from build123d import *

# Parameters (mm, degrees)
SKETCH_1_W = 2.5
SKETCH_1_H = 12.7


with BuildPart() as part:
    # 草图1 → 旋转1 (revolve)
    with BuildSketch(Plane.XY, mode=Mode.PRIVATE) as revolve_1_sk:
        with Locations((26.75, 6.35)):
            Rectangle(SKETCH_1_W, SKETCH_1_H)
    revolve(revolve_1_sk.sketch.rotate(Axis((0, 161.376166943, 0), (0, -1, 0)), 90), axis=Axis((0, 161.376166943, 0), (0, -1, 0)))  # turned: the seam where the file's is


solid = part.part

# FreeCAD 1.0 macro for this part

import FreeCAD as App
import Part
import Sketcher
from FreeCAD import Vector
Q = App.Units.Quantity


def add_polygon(sketch, points):
    """Adds a closed chain of lines whose ends are joined by coincident constraints."""
    first, n = sketch.GeometryCount, len(points)
    for a, b in zip(points, points[1:] + points[:1]):
        sketch.addGeometry(Part.LineSegment(App.Vector(*a, 0), App.Vector(*b, 0)), False)
    for i in range(n):
        sketch.addConstraint(Sketcher.Constraint("Coincident", first + i, 2, first + (i + 1) % n, 1))

doc = App.newDocument("Part")
params = doc.addObject("Spreadsheet::Sheet", "Params")
for row, (alias, value) in enumerate([
    ("sketch1_width", "2.5 mm"),
    ("sketch1_height", "12.7 mm"),
    ("revolution_angle", "360 deg"),
], start=1):
    params.set(f"A{row}", alias)
    params.set(f"B{row}", "=" + value)
    params.setAlias(f"B{row}", alias)

body = doc.addObject("PartDesign::Body", "Body")

sketch1 = doc.addObject("Sketcher::SketchObject", "Sketch")
body.addObject(sketch1)
sketch1.AttachmentSupport = (doc.XY_Plane, [""])
sketch1.MapMode = "FlatFace"
add_polygon(sketch1, [(25.5, 12.7), (25.5, 0), (28, 0), (28, 12.7)])
sketch1.addConstraint([
    Sketcher.Constraint("Vertical", 0),
    Sketcher.Constraint("Horizontal", 1),
    Sketcher.Constraint("Vertical", 2),
    Sketcher.Constraint("Horizontal", 3),
    Sketcher.Constraint("PointOnObject", 0, 2, -1),
    Sketcher.Constraint("DistanceX", 1, 1, 1, 2, Q("2.5 mm")),
    Sketcher.Constraint("DistanceY", 0, 2, 0, 1, Q("12.7 mm")),
    Sketcher.Constraint("DistanceX", -1, 1, 1, 2, Q("28 mm")),
])
sketch1.setExpression("Constraints[9]", "Params.sketch1_width")
sketch1.setExpression("Constraints[10]", "Params.sketch1_height")
revolution = doc.addObject("PartDesign::Revolution", "Revolution")
body.addObject(revolution)
revolution.Profile = sketch1
revolution.ReferenceAxis = (sketch1, ["V_Axis"])
revolution.setExpression("Angle", "Params.revolution_angle")

doc.recompute()
